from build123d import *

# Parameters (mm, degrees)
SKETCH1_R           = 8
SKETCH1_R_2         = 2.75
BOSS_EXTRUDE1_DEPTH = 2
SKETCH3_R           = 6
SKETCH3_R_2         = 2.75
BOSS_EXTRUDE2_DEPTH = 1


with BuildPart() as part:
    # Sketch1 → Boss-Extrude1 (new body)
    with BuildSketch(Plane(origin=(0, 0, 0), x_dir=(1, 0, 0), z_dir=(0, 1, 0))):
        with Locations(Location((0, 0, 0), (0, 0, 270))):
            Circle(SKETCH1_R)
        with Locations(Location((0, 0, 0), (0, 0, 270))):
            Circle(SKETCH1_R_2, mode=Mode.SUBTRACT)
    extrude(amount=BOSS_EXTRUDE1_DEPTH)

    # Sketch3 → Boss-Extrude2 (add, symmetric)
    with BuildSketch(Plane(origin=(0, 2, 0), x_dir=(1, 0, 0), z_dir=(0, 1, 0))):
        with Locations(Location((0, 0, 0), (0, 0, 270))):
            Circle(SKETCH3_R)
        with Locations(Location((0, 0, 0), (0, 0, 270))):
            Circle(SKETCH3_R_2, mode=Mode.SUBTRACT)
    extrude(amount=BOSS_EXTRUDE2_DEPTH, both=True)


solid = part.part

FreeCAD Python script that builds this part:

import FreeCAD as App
import Part
import Sketcher

doc = App.newDocument("Part")
body = doc.addObject("PartDesign::Body", "Body")

sketch1 = body.newObject("Sketcher::SketchObject", "Sketch")
sketch1.AttachmentSupport = (doc.getObject("XZ_Plane"), [""])
sketch1.MapMode = "FlatFace"
sketch1.addGeometry(Part.Circle(App.Vector(0, 0, 0), App.Vector(0, 0, 1), 8), False)
sketch1.addGeometry(Part.Circle(App.Vector(0, 0, 0), App.Vector(0, 0, 1), 2.8), False)
sketch1.addConstraint(Sketcher.Constraint("Coincident", 0, 3, -1, 1))
sketch1.addConstraint(Sketcher.Constraint("Coincident", 1, 3, -1, 1))
sketch1.addConstraint(Sketcher.Constraint("Diameter", 0, 16.0))
sketch1.addConstraint(Sketcher.Constraint("Diameter", 1, 5.5))
pad1 = body.newObject("PartDesign::Pad", "Pad")
pad1.Profile = sketch1
pad1.Length = 2
pad1.Reversed = True

sketch2 = body.newObject("Sketcher::SketchObject", "Sketch001")
sketch2.AttachmentSupport = (doc.getObject("XZ_Plane"), [""])
sketch2.MapMode = "FlatFace"
sketch2.AttachmentOffset = App.Placement(App.Vector(0, 0, -2), App.Rotation())
sketch2.addGeometry(Part.Circle(App.Vector(0, 0, 0), App.Vector(0, 0, 1), 6), False)
sketch2.addGeometry(Part.Circle(App.Vector(0, 0, 0), App.Vector(0, 0, 1), 2.8), False)
sketch2.addConstraint(Sketcher.Constraint("Coincident", 0, 3, -1, 1))
sketch2.addConstraint(Sketcher.Constraint("Coincident", 1, 3, -1, 1))
sketch2.addConstraint(Sketcher.Constraint("Diameter", 0, 12.0))
sketch2.addConstraint(Sketcher.Constraint("Diameter", 1, 5.5))
pad2 = body.newObject("PartDesign::Pad", "Pad001")
pad2.Profile = sketch2
pad2.Length = 2
pad2.Midplane = True

doc.recompute()
